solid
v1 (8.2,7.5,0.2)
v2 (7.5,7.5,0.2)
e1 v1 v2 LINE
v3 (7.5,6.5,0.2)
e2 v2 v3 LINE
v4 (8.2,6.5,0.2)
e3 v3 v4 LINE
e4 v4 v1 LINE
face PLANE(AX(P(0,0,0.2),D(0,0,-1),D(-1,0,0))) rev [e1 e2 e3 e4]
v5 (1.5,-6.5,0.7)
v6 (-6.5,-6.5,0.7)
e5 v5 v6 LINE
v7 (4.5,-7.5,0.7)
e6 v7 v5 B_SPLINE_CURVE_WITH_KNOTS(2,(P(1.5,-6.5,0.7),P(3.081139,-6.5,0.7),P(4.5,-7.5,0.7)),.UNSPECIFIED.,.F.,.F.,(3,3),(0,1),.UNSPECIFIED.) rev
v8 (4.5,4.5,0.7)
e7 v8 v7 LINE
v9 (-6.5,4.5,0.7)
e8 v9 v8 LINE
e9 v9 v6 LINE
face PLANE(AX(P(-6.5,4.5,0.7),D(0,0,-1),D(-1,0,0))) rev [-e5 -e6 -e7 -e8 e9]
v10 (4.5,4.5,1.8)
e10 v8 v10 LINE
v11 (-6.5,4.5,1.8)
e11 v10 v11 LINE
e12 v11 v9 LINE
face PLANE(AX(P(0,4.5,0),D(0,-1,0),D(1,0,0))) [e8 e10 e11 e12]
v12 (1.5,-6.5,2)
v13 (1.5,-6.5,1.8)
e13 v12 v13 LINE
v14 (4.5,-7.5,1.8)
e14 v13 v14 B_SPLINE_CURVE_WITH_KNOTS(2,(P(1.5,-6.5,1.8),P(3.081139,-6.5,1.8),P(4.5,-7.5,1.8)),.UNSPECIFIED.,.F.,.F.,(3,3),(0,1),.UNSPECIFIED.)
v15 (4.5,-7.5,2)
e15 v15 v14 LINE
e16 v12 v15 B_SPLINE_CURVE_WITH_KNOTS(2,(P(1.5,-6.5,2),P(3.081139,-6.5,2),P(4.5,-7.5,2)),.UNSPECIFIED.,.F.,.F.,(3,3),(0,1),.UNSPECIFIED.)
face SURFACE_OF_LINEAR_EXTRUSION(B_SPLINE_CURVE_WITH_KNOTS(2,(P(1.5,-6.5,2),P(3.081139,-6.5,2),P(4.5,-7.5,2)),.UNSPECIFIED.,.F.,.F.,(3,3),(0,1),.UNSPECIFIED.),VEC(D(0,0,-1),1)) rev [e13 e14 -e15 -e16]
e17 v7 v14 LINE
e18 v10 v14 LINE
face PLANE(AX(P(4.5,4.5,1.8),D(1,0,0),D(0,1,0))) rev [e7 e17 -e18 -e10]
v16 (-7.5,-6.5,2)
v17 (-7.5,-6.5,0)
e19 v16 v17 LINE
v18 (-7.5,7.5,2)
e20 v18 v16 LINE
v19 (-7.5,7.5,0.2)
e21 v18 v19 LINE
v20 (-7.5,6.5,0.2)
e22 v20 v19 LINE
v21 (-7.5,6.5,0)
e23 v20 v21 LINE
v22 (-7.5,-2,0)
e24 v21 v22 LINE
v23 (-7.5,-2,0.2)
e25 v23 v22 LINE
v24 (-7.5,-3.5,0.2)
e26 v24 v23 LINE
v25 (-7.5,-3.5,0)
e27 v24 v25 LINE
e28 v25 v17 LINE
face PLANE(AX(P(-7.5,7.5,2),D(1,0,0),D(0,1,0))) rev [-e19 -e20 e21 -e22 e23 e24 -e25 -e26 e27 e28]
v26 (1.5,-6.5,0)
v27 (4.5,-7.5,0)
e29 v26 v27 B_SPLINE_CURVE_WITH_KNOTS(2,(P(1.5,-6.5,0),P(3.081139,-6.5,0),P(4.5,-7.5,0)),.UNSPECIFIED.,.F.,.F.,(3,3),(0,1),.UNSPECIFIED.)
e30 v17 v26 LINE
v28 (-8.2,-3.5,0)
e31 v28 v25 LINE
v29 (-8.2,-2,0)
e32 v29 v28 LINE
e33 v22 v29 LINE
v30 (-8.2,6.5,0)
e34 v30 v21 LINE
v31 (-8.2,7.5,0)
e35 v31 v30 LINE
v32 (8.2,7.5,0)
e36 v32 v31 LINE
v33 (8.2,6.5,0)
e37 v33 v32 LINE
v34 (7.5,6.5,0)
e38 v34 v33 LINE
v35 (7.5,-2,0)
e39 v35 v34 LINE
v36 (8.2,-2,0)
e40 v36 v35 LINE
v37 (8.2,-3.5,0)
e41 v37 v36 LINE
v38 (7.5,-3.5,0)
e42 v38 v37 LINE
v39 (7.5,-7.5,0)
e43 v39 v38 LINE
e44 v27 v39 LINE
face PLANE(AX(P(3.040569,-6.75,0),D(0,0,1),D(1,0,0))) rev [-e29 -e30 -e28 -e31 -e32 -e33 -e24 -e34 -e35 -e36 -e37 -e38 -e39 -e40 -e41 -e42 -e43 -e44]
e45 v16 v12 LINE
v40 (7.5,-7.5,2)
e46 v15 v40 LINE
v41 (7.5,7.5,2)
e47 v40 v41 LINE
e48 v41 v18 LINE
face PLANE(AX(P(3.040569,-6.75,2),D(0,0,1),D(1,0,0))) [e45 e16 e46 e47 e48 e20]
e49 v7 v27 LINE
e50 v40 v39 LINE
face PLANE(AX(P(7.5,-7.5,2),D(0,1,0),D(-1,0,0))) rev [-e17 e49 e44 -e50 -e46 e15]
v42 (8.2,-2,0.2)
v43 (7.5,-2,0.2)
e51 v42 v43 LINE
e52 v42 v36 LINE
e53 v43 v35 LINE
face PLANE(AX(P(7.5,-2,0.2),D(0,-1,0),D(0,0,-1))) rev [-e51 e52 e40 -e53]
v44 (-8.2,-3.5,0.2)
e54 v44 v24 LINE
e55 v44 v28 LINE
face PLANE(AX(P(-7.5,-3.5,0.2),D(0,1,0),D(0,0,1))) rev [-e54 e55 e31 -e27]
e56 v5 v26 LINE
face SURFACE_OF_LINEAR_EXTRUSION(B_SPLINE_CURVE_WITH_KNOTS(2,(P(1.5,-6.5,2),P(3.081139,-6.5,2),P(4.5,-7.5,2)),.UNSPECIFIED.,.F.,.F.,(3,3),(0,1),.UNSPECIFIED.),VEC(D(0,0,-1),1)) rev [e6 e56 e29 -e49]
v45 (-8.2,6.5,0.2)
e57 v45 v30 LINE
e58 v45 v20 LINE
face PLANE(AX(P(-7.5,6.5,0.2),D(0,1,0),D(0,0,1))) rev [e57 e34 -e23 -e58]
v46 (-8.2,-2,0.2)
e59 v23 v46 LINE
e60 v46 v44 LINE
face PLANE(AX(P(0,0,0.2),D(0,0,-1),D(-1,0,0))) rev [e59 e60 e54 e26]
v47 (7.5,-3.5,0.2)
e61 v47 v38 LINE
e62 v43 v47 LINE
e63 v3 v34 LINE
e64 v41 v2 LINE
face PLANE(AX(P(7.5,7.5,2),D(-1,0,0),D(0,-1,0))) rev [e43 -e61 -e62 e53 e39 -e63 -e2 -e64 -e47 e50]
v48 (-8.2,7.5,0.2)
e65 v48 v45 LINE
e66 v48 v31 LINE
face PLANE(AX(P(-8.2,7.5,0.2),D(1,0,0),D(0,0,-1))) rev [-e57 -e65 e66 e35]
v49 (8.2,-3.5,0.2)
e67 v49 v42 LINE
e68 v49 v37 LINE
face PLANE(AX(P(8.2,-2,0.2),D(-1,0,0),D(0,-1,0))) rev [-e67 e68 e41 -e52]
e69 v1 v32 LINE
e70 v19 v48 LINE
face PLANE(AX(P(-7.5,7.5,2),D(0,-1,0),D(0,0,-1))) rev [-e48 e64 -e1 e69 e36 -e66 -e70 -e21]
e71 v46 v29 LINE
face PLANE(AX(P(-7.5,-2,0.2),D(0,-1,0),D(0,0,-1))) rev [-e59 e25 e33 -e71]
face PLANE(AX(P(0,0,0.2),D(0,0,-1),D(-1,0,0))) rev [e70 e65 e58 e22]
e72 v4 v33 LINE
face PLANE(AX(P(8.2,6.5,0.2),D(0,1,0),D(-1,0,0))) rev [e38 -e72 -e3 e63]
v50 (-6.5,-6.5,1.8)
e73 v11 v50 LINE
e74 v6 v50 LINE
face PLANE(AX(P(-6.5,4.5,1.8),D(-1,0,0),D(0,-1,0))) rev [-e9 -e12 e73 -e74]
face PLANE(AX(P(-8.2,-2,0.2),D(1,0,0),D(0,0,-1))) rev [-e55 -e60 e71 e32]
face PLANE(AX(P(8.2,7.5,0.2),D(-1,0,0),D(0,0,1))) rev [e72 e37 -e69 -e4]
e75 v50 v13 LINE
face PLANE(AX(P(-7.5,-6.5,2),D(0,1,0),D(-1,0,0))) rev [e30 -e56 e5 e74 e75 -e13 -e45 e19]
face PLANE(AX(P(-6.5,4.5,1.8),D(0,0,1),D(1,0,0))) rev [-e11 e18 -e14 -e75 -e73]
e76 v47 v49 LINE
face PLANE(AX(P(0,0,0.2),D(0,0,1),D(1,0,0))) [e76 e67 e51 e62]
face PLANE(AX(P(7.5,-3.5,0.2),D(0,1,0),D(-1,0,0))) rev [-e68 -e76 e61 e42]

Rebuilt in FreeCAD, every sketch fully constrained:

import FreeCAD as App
import Part
import Sketcher


def add_polygon(sketch, points):
    """Adds a closed chain of lines whose ends are joined by coincident constraints."""
    first, n = sketch.GeometryCount, len(points)
    for a, b in zip(points, points[1:] + points[:1]):
        sketch.addGeometry(Part.LineSegment(App.Vector(*a, 0), App.Vector(*b, 0)), False)
    for i in range(n):
        sketch.addConstraint(Sketcher.Constraint("Coincident", first + i, 2, first + (i + 1) % n, 1))

doc = App.newDocument("Part")
body = doc.addObject("PartDesign::Body", "Body")

# Sketch on XY plane
sketch1 = body.newObject("Sketcher::SketchObject", "Sketch")
sketch1.AttachmentSupport = (doc.getObject("XY_Plane"), [""])
sketch1.MapMode = "FlatFace"
sketch1.addGeometry([
    Part.LineSegment(App.Vector(7.5, 7.5, 0), App.Vector(-7.5, 7.5, 0)),  # 0
    Part.LineSegment(App.Vector(-7.5, 7.5, 0), App.Vector(-7.5, -6.5, 0)),  # 1
    Part.LineSegment(App.Vector(-7.5, -6.5, 0), App.Vector(1.5, -6.5, 0)),  # 2
    Part.BSplineCurve([App.Vector(1.5, -6.5, 0), App.Vector(3.081139, -6.5, 0), App.Vector(4.5, -7.5, 0)], [3, 3], [0, 1], False, 2, [1, 1, 1], False),  # 3
    Part.LineSegment(App.Vector(4.5, -7.5, 0), App.Vector(7.5, -7.5, 0)),  # 4
    Part.LineSegment(App.Vector(7.5, -7.5, 0), App.Vector(7.5, 7.5, 0)),  # 5
], False)
sketch1.addConstraint([
    Sketcher.Constraint("Block", 3),
    Sketcher.Constraint("Coincident", 0, 2, 1, 1),
    Sketcher.Constraint("Coincident", 1, 2, 2, 1),
    Sketcher.Constraint("Coincident", 2, 2, 3, 1),
    Sketcher.Constraint("Coincident", 3, 2, 4, 1),
    Sketcher.Constraint("Coincident", 4, 2, 5, 1),
    Sketcher.Constraint("Coincident", 5, 2, 0, 1),
    Sketcher.Constraint("Horizontal", 0),
    Sketcher.Constraint("Vertical", 1),
    Sketcher.Constraint("Horizontal", 2),
    Sketcher.Constraint("Horizontal", 4),
    Sketcher.Constraint("Vertical", 5),
    Sketcher.Constraint("Symmetric", 0, 2, 4, 2, -1, 1),
    Sketcher.Constraint("Equal", 0, 5),
])
pad1 = body.newObject("PartDesign::Pad", "Pad")
pad1.Profile = sketch1
pad1.Length = 2

# Sketch on XZ plane
sketch2 = body.newObject("Sketcher::SketchObject", "Sketch001")
sketch2.AttachmentSupport = (doc.getObject("XZ_Plane"), [""])
sketch2.MapMode = "FlatFace"
sketch2.AttachmentOffset = App.Placement(App.Vector(0, 0, 7.5), App.Rotation())
add_polygon(sketch2, [(-6.5, 1.8), (-6.5, 0.7), (4.5, 0.7), (4.5, 1.8)])  # lines 0-3
sketch2.addConstraint([
    Sketcher.Constraint("Vertical", 0),
    Sketcher.Constraint("Horizontal", 1),
    Sketcher.Constraint("Vertical", 2),
    Sketcher.Constraint("Horizontal", 3),
    Sketcher.Constraint("DistanceX", 1, 1, 1, 2, 11.0),
    Sketcher.Constraint("DistanceY", 0, 2, 0, 1, 1.1),
    Sketcher.Constraint("DistanceX", 0, 2, -1, 1, 6.5),
    Sketcher.Constraint("DistanceY", -1, 1, 0, 2, 0.7),
])
pocket1 = body.newObject("PartDesign::Pocket", "Pocket")
pocket1.Profile = sketch2
pocket1.Length = 12

# Sketch on XY plane
sketch3 = body.newObject("Sketcher::SketchObject", "Sketch002")
sketch3.AttachmentSupport = (doc.getObject("XY_Plane"), [""])
sketch3.MapMode = "FlatFace"
add_polygon(sketch3, [(7.5, 7.5), (7.5, 6.5), (8.2, 6.5), (8.2, 7.5)])  # lines 0-3
add_polygon(sketch3, [(-8.2, 7.5), (-8.2, 6.5), (-7.5, 6.5), (-7.5, 7.5)])  # lines 4-7
add_polygon(sketch3, [(-8.2, -2), (-8.2, -3.5), (-7.5, -3.5), (-7.5, -2)])  # lines 8-11
add_polygon(sketch3, [(7.5, -2), (7.5, -3.5), (8.2, -3.5), (8.2, -2)])  # lines 12-15
sketch3.addConstraint([
    Sketcher.Constraint("Vertical", 0),
    Sketcher.Constraint("Horizontal", 1),
    Sketcher.Constraint("Vertical", 2),
    Sketcher.Constraint("Horizontal", 3),
    Sketcher.Constraint("Vertical", 4),
    Sketcher.Constraint("Horizontal", 5),
    Sketcher.Constraint("Vertical", 6),
    Sketcher.Constraint("Horizontal", 7),
    Sketcher.Constraint("Vertical", 8),
    Sketcher.Constraint("Horizontal", 9),
    Sketcher.Constraint("Vertical", 10),
    Sketcher.Constraint("Horizontal", 11),
    Sketcher.Constraint("Vertical", 12),
    Sketcher.Constraint("Horizontal", 13),
    Sketcher.Constraint("Vertical", 14),
    Sketcher.Constraint("Horizontal", 15),
    Sketcher.Constraint("Symmetric", 1, 2, 4, 2, -2),
    Sketcher.Constraint("Symmetric", 3, 2, 6, 2, -2),
    Sketcher.Constraint("Symmetric", 9, 2, 12, 2, -2),
    Sketcher.Constraint("Symmetric", 11, 2, 14, 2, -2),
    Sketcher.Constraint("Vertical", 7, 2, 8, 2),
    Sketcher.Constraint("Vertical", 6, 2, 9, 2),
    Sketcher.Constraint("DistanceY", 0, 2, 0, 1, 1.0),
    Sketcher.Constraint("DistanceX", 1, 1, 1, 2, 0.7),
    Sketcher.Constraint("DistanceY", 8, 2, 8, 1, 1.5),
    Sketcher.Constraint("DistanceY", 10, 2, -1, 1, 2.0),
    Sketcher.Constraint("DistanceX", 5, 2, 0, 2, 15.0),
    Sketcher.Constraint("DistanceY", 8, 2, 4, 2, 10.0),
])
pad2 = body.newObject("PartDesign::Pad", "Pad001")
pad2.Profile = sketch3
pad2.Length = 0.2

doc.recompute()
